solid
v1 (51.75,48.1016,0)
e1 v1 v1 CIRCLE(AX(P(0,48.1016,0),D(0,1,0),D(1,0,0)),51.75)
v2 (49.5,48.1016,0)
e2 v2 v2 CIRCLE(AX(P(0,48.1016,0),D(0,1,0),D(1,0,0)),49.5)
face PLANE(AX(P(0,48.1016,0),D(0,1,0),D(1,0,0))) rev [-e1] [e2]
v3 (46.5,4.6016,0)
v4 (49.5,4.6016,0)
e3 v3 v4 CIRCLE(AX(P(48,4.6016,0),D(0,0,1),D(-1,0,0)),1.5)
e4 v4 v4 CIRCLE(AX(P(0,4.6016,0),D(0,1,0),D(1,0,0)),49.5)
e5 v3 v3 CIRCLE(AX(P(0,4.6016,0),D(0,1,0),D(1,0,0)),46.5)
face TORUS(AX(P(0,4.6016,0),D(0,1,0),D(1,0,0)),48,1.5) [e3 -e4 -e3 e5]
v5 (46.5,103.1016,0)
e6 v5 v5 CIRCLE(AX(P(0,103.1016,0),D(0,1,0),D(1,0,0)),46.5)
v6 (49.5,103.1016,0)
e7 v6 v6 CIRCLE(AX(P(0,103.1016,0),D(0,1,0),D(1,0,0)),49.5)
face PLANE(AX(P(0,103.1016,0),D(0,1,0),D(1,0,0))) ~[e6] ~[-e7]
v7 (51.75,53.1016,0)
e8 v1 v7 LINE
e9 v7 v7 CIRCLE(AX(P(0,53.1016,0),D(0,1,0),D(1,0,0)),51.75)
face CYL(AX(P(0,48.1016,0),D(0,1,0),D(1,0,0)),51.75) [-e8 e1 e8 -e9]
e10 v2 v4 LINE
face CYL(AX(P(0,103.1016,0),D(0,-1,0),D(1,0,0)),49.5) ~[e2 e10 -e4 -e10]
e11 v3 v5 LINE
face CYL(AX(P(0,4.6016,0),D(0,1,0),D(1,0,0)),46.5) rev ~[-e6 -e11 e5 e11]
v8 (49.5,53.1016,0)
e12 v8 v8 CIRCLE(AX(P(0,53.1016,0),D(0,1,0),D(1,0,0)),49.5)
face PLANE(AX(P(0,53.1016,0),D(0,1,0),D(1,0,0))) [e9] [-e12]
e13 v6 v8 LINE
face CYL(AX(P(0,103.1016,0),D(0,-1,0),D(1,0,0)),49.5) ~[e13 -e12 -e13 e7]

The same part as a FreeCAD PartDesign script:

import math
import FreeCAD as App
import Part
import Sketcher

doc = App.newDocument("Part")
body = doc.addObject("PartDesign::Body", "Body")

sketch1 = body.newObject("Sketcher::SketchObject", "Sketch")
sketch1.AttachmentSupport = (doc.getObject("XY_Plane"), [""])
sketch1.MapMode = "FlatFace"
sketch1.addGeometry([
    Part.LineSegment(App.Vector(49.5, 103.1, 0), App.Vector(46.5, 103.1, 0)),
    Part.LineSegment(App.Vector(46.5, 103.1, 0), App.Vector(46.5, 4.6, 0)),
    Part.ArcOfCircle(Part.Circle(App.Vector(48, 4.6, 0), App.Vector(0, 0, 1), 1.5), math.radians(180), math.radians(360)),
    Part.LineSegment(App.Vector(49.5, 4.6, 0), App.Vector(49.5, 48.1, 0)),
    Part.LineSegment(App.Vector(49.5, 48.1, 0), App.Vector(51.8, 48.1, 0)),
    Part.LineSegment(App.Vector(51.8, 48.1, 0), App.Vector(51.8, 53.1, 0)),
    Part.LineSegment(App.Vector(51.8, 53.1, 0), App.Vector(49.5, 53.1, 0)),
    Part.LineSegment(App.Vector(49.5, 53.1, 0), App.Vector(49.5, 103.1, 0)),
], False)
sketch1.addConstraint([
    Sketcher.Constraint("Coincident", 0, 2, 1, 1),
    Sketcher.Constraint("Tangent", 1, 2, 2, 1),
    Sketcher.Constraint("Tangent", 2, 2, 3, 1),
    Sketcher.Constraint("Coincident", 3, 2, 4, 1),
    Sketcher.Constraint("Coincident", 4, 2, 5, 1),
    Sketcher.Constraint("Coincident", 5, 2, 6, 1),
    Sketcher.Constraint("Coincident", 6, 2, 7, 1),
    Sketcher.Constraint("Coincident", 7, 2, 0, 1),
    Sketcher.Constraint("Horizontal", 0),
    Sketcher.Constraint("Vertical", 1),
    Sketcher.Constraint("Vertical", 3),
    Sketcher.Constraint("Horizontal", 4),
    Sketcher.Constraint("Vertical", 5),
    Sketcher.Constraint("Horizontal", 6),
    Sketcher.Constraint("Vertical", 7),
    Sketcher.Constraint("Vertical", 3, 2, 6, 2),
    Sketcher.Constraint("Radius", 2, 1.5),
    Sketcher.Constraint("DistanceY", 5, 1, 5, 2, 5.0),
    Sketcher.Constraint("DistanceY", 7, 1, 7, 2, 50.0),
    Sketcher.Constraint("DistanceY", 1, 2, 1, 1, 98.5),
    Sketcher.Constraint("DistanceX", -1, 1, 2, 3, 48.0),
    Sketcher.Constraint("DistanceX", 4, 1, 4, 2, 2.25),
    Sketcher.Constraint("DistanceY", -1, 1, 2, 3, 4.6016),
])
revolution = body.newObject("PartDesign::Revolution", "Revolution")
revolution.Profile = sketch1
revolution.ReferenceAxis = (sketch1, ["V_Axis"])
revolution.Angle = 360

doc.recompute()
